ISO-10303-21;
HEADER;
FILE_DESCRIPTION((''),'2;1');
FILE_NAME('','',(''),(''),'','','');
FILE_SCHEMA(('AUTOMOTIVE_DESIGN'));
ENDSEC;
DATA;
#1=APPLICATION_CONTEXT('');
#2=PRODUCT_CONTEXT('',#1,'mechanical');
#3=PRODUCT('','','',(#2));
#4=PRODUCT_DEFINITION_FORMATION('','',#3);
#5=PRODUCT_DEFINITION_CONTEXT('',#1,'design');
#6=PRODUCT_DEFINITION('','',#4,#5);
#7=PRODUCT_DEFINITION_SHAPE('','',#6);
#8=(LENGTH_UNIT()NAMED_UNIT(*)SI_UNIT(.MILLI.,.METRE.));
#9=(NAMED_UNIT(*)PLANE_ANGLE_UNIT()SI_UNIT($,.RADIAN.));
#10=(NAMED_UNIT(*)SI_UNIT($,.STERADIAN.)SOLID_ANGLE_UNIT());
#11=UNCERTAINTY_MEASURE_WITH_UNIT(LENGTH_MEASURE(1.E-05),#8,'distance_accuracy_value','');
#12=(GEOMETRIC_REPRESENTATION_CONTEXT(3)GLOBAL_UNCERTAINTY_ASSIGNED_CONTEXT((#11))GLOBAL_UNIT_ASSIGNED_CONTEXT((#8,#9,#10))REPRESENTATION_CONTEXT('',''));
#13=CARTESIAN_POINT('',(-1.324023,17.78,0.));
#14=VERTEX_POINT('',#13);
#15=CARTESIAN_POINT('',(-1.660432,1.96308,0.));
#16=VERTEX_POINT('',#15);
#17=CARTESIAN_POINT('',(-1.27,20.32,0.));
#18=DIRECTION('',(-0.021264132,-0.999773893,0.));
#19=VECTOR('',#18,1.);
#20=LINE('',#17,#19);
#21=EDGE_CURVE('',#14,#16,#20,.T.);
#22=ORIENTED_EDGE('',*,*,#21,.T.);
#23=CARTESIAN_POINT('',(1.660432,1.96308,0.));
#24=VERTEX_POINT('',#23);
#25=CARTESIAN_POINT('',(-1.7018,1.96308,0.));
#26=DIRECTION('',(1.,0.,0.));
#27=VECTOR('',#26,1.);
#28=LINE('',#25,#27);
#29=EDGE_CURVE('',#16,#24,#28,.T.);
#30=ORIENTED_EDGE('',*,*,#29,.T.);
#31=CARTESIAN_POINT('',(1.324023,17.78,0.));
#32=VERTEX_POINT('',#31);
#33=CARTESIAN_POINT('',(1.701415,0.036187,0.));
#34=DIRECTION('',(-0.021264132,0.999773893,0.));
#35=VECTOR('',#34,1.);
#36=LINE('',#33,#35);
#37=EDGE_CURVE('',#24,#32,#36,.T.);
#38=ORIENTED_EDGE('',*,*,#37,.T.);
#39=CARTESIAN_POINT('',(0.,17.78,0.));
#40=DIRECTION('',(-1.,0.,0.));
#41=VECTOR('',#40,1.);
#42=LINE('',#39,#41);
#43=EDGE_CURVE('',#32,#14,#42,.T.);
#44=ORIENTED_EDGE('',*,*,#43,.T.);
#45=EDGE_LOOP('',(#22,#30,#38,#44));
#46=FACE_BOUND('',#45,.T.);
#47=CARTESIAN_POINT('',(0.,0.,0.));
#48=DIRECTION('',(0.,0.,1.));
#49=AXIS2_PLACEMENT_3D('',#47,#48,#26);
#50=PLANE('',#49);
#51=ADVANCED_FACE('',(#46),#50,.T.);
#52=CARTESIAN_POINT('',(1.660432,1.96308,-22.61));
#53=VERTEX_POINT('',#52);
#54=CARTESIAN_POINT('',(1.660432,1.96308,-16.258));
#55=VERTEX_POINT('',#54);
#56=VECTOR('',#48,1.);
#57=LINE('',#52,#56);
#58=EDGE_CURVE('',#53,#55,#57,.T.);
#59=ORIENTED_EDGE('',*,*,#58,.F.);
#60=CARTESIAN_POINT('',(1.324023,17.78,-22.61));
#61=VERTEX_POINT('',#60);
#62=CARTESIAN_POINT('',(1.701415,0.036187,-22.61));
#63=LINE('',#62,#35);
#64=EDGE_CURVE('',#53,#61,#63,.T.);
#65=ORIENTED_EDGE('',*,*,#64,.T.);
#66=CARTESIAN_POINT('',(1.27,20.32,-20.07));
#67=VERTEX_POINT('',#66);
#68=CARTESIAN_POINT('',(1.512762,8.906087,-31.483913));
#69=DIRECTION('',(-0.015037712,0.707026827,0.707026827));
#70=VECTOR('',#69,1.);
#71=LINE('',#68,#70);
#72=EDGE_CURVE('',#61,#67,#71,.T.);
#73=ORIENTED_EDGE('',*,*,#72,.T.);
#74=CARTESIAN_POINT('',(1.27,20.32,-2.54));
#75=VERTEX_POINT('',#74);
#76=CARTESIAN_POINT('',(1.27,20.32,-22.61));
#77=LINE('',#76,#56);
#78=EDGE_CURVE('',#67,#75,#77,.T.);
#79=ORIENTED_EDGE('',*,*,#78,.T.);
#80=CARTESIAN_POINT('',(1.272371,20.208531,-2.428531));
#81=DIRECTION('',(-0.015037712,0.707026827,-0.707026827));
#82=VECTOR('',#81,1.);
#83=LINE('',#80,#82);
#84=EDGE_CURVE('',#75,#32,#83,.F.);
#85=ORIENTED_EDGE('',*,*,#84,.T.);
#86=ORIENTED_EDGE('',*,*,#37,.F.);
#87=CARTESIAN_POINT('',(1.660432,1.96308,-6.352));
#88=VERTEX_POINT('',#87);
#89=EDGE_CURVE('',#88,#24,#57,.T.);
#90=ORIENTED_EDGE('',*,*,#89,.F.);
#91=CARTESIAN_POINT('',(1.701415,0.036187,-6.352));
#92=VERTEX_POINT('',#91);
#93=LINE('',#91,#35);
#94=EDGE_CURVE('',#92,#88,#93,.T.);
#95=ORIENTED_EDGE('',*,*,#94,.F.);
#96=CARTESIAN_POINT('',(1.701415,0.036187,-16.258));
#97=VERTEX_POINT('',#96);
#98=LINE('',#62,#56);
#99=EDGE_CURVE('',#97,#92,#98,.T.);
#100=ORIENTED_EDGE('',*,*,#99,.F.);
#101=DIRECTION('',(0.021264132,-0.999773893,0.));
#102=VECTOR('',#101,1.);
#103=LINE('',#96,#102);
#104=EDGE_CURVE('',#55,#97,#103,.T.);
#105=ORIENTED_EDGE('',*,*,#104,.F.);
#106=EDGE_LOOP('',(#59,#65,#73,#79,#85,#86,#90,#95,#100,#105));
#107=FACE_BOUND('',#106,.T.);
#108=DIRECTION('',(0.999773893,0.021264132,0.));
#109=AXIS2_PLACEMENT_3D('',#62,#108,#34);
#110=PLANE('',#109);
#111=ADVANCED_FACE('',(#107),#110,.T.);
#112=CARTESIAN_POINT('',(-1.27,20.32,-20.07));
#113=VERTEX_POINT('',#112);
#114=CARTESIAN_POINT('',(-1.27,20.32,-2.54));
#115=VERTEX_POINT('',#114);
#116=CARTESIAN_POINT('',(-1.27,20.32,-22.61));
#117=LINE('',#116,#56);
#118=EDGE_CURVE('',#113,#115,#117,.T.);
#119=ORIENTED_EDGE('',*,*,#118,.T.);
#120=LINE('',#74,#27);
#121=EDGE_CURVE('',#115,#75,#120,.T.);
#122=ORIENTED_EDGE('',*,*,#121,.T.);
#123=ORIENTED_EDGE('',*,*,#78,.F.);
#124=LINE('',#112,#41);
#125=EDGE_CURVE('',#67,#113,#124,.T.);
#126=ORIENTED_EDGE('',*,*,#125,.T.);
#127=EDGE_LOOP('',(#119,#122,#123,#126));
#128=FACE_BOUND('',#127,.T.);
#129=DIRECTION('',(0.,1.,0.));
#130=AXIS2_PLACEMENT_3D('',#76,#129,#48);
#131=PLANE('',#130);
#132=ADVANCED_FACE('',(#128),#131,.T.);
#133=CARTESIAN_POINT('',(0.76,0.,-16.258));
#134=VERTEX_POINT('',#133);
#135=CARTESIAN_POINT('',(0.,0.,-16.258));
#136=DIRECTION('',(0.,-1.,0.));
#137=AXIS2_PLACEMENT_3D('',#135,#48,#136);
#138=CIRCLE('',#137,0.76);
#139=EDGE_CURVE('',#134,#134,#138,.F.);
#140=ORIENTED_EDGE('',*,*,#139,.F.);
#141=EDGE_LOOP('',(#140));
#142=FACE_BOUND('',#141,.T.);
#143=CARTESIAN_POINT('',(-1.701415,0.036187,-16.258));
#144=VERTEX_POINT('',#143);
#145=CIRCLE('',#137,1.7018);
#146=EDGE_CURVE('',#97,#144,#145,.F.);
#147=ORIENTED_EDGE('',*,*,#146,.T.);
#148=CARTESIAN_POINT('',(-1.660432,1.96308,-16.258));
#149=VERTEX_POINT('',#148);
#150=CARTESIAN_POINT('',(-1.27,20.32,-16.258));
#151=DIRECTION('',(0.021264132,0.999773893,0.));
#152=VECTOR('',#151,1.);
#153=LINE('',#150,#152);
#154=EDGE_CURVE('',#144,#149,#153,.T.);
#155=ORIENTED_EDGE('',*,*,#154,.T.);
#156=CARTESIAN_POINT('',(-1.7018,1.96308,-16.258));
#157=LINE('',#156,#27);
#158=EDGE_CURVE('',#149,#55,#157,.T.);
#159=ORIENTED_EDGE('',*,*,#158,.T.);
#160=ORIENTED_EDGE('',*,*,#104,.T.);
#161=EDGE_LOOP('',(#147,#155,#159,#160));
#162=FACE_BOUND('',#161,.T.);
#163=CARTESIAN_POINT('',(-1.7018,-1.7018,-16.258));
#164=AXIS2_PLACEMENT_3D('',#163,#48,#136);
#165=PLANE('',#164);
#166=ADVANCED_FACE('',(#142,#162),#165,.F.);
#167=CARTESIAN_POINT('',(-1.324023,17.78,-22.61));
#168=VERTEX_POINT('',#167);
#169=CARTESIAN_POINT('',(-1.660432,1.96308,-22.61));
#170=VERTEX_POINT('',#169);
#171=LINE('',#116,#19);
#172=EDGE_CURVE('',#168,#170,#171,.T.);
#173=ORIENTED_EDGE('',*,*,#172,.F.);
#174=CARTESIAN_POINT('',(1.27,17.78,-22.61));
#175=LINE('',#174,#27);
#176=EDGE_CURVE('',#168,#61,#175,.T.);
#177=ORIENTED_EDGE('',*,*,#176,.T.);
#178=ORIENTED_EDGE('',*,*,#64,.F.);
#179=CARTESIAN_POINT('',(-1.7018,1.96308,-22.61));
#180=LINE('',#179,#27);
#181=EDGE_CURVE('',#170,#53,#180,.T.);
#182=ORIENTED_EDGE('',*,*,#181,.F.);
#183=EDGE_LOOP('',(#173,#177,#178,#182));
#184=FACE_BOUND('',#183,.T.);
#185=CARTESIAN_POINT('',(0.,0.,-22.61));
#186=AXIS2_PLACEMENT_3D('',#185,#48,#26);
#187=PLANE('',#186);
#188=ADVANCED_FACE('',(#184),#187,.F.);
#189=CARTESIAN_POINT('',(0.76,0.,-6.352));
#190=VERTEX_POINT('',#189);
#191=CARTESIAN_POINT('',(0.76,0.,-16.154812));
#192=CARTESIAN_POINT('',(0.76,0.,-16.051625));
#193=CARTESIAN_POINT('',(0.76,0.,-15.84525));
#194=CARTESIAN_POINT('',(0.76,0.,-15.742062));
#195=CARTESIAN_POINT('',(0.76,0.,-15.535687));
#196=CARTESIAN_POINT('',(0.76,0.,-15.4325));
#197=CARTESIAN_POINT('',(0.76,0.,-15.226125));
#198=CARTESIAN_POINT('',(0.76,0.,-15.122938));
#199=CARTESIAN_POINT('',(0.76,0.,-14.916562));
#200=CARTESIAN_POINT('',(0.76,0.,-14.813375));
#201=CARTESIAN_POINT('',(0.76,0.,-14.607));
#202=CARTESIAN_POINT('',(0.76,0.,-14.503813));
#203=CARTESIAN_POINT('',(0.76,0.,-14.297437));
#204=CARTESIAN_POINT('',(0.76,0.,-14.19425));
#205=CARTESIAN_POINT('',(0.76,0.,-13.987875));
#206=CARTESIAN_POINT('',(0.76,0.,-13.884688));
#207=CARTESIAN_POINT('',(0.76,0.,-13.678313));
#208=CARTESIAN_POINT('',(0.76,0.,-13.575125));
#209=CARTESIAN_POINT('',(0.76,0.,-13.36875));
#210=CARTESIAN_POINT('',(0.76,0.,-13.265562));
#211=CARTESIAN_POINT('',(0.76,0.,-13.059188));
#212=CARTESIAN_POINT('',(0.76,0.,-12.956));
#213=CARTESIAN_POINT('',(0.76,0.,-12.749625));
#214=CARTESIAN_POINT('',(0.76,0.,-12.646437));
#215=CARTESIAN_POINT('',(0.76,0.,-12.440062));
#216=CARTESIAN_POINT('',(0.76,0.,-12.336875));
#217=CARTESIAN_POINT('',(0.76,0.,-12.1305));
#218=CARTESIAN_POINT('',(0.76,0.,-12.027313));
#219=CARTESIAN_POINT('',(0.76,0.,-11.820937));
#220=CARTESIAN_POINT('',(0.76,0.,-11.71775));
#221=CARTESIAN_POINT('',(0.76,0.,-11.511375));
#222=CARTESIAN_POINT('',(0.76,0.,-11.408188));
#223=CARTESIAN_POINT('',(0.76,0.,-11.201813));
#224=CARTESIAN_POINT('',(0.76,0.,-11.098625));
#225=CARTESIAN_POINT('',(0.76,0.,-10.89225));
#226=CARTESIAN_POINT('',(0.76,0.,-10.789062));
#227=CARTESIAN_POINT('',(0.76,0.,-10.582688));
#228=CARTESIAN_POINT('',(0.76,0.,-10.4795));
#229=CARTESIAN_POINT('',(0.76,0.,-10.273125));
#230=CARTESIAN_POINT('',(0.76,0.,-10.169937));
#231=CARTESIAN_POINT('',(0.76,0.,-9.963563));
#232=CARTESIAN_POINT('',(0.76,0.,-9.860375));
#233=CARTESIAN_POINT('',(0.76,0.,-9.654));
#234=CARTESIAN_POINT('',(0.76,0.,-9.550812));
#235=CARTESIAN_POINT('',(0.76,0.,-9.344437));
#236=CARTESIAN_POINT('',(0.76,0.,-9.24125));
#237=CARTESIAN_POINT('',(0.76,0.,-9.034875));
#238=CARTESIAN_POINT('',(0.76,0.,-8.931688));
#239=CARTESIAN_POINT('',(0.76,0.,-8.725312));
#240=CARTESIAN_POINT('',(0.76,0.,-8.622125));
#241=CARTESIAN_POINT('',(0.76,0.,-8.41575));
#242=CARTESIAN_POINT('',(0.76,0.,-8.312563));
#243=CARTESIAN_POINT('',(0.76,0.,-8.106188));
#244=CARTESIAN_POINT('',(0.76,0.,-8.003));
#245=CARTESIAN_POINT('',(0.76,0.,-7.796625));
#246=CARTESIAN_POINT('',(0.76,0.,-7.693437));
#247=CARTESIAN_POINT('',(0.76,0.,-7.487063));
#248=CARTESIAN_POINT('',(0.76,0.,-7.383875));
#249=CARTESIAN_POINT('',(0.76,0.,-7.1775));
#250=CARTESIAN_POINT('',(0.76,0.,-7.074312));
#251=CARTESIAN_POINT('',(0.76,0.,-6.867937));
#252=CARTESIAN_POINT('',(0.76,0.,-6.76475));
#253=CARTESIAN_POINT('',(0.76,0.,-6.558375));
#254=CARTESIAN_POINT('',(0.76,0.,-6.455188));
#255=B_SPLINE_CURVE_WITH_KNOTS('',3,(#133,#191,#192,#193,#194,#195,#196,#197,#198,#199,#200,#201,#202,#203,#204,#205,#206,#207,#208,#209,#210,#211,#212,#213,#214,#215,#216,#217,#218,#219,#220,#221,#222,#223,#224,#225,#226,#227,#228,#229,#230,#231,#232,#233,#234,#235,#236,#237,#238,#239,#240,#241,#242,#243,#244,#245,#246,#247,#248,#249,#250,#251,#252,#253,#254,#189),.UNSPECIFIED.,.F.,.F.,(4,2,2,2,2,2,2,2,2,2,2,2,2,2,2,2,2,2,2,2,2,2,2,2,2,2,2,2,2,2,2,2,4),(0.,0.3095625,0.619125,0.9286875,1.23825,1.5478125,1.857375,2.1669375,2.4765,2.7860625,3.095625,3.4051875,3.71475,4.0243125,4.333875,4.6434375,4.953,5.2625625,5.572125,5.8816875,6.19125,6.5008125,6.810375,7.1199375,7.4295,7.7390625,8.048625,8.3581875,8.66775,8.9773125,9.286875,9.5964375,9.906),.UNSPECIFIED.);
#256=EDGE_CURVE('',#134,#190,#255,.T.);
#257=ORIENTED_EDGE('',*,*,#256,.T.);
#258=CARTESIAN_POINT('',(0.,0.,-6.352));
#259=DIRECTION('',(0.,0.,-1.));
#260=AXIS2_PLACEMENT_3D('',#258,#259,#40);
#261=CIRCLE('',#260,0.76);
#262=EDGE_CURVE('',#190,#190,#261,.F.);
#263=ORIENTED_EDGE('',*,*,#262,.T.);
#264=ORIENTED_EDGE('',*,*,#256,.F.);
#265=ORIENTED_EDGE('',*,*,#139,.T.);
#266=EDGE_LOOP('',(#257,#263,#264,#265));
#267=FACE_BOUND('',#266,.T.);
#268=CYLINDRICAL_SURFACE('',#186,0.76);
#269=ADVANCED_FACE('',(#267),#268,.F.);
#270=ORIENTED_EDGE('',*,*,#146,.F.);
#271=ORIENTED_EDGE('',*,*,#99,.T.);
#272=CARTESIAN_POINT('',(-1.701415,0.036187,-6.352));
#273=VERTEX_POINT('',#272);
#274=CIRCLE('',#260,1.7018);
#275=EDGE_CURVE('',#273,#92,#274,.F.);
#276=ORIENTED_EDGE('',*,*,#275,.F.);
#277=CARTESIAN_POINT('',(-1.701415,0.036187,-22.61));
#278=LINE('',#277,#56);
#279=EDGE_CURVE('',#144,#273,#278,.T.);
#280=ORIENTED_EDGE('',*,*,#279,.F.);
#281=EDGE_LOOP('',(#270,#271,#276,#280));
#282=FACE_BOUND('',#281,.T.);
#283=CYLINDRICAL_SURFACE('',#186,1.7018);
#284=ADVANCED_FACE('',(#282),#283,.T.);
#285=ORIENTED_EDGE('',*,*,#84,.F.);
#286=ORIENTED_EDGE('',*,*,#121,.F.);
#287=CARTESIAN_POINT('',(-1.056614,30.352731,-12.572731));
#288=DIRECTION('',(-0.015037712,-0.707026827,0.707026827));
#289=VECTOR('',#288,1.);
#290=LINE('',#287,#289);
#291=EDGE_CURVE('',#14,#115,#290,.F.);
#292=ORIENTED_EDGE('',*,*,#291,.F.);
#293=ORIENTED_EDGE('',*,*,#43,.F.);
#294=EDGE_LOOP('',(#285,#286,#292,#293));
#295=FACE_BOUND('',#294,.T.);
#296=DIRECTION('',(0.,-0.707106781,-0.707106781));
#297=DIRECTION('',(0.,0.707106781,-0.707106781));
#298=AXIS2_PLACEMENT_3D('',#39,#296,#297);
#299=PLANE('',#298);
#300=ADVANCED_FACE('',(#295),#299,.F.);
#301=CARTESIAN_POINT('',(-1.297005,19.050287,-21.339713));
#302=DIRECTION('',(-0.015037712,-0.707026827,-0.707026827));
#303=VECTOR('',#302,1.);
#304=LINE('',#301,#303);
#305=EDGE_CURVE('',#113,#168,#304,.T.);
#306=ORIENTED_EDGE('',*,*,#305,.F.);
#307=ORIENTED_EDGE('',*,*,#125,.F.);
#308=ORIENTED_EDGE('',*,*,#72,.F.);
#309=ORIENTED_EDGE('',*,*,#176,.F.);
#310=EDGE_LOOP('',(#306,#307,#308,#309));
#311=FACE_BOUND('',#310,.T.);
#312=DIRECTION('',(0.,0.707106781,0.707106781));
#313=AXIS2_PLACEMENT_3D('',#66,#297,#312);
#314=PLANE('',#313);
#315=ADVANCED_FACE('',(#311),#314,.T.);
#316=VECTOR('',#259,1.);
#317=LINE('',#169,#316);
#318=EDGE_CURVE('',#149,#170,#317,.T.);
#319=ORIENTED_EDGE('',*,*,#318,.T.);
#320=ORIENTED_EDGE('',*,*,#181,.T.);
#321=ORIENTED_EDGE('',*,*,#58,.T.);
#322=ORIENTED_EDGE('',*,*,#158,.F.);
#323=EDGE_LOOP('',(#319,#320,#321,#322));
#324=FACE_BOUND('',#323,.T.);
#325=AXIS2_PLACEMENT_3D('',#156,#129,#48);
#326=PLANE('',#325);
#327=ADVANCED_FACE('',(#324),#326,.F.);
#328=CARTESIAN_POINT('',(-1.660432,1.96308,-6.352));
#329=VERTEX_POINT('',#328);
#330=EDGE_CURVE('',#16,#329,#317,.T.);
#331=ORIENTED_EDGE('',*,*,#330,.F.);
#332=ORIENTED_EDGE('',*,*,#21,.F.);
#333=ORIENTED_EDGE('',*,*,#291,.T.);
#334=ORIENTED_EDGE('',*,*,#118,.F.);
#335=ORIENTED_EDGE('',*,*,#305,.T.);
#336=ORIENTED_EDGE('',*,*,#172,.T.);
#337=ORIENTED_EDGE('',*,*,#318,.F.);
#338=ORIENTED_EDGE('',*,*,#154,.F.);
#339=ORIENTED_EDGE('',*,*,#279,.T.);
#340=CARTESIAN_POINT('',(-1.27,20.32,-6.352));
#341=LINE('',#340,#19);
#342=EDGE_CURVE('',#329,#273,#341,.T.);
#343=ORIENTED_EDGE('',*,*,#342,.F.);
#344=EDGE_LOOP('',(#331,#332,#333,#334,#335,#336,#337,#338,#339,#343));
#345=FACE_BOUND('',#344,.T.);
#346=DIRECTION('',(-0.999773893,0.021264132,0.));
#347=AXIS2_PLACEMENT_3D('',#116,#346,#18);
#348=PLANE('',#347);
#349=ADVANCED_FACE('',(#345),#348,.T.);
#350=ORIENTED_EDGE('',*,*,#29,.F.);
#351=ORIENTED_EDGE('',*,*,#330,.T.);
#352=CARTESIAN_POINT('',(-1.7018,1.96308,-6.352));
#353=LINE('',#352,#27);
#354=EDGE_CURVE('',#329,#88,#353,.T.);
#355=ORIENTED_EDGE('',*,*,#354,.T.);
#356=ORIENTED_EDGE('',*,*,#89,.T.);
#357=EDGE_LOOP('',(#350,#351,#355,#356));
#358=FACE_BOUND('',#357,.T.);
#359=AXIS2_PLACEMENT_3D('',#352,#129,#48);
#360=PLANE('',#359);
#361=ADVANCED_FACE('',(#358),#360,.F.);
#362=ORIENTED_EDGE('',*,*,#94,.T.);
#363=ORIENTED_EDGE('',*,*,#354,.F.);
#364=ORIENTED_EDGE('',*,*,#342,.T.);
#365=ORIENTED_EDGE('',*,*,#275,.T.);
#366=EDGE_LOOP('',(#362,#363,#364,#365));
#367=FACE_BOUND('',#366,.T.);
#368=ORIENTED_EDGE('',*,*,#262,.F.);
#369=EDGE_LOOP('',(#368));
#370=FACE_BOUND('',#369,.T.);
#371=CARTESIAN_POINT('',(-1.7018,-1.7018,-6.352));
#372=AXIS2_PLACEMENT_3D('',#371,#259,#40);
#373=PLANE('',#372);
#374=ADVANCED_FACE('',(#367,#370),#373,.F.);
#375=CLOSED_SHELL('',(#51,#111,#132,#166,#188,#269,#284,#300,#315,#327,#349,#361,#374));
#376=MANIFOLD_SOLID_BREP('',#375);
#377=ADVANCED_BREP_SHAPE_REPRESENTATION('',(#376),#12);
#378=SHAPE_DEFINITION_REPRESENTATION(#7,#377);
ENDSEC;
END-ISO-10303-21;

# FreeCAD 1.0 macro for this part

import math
import FreeCAD as App
import Part
import Sketcher

V = App.Vector
Q = App.Units.Quantity


def edges_at(feature, points):
    """Names of the edges that pass closest to the given points."""
    edges = feature.Shape.Edges
    near = lambda p: min(range(len(edges)), key=lambda i: edges[i].distToShape(Part.Vertex(*p))[0])
    return sorted({f"Edge{near(p) + 1}" for p in points})


def add_polygon(sketch, points):
    """Adds a closed chain of lines whose ends are joined by coincident constraints."""
    first, n = sketch.GeometryCount, len(points)
    for a, b in zip(points, points[1:] + points[:1]):
        sketch.addGeometry(Part.LineSegment(App.Vector(*a, 0), App.Vector(*b, 0)), False)
    for i in range(n):
        sketch.addConstraint(Sketcher.Constraint("Coincident", first + i, 2, first + (i + 1) % n, 1))

doc = App.newDocument("Part")
body = doc.addObject("PartDesign::Body", "Body")

# Sketch on XY plane
sketch1 = body.newObject("Sketcher::SketchObject", "Sketch")
sketch1.AttachmentSupport = (doc.getObject("XY_Plane"), [""])
sketch1.MapMode = "FlatFace"
sketch1.addGeometry(Part.LineSegment(V(-1.27, 20.32, 0), V(-1.701415, 0.036187, 0)), False)
sketch1.addGeometry(Part.ArcOfCircle(Part.Circle(V(0, 0, 0), V(0, 0, 1), 1.7018), math.radians(178.781563), math.radians(361.218437)), False)
sketch1.addGeometry(Part.LineSegment(V(1.701415, 0.036187, 0), V(1.27, 20.32, 0)), False)
sketch1.addGeometry(Part.LineSegment(V(1.27, 20.32, 0), V(-1.27, 20.32, 0)), False)
sketch1.addConstraint(Sketcher.Constraint("Tangent", 0, 2, 1, 1))
sketch1.addConstraint(Sketcher.Constraint("Tangent", 1, 2, 2, 1))
sketch1.addConstraint(Sketcher.Constraint("Coincident", 2, 2, 3, 1))
sketch1.addConstraint(Sketcher.Constraint("Coincident", 3, 2, 0, 1))
sketch1.addConstraint(Sketcher.Constraint("Horizontal", 3))
sketch1.addConstraint(Sketcher.Constraint("Coincident", 1, 3, -1, 1))
sketch1.addConstraint(Sketcher.Constraint("Horizontal", 0, 2, 1, 2))
sketch1.addConstraint(Sketcher.Constraint("DistanceX", 3, 2, 3, 1, Q("0.1 in")))
sketch1.addConstraint(Sketcher.Constraint("Radius", 1, Q("0.067 in")))
sketch1.addConstraint(Sketcher.Constraint("DistanceY", -1, 1, 2, 2, Q("0.8 in")))
pad1 = body.newObject("PartDesign::Pad", "Pad")
pad1.Profile = sketch1
pad1.Length = 22.61
pad1.Reversed = True
doc.recompute()

chamfer = body.newObject("PartDesign::Chamfer", "Chamfer")
chamfer.Base = (pad1, edges_at(pad1, [(0, 20.32, -22.61), (0, 20.32, 0)]))
chamfer.Size = Q("0.1 in")

# Sketch on XY plane
sketch2 = body.newObject("Sketcher::SketchObject", "Sketch001")
sketch2.AttachmentSupport = (doc.getObject("XY_Plane"), [""])
sketch2.MapMode = "FlatFace"
sketch2.addGeometry(Part.Circle(V(0, 0, 0), V(0, 0, 1), 0.76), False)
sketch2.addConstraint(Sketcher.Constraint("Coincident", 0, 3, -1, 1))
sketch2.addConstraint(Sketcher.Constraint("Diameter", 0, 1.52))
pocket1 = body.newObject("PartDesign::Pocket", "Pocket")
pocket1.Profile = sketch2
pocket1.Type = "ThroughAll"

# Sketch on YZ plane
sketch3 = body.newObject("Sketcher::SketchObject", "Sketch002")
sketch3.AttachmentSupport = (doc.getObject("YZ_Plane"), [""])
sketch3.MapMode = "FlatFace"
add_polygon(sketch3, [(1.96308, 0), (-1.7018, 0), (-1.7018, -6.352), (1.96308, -6.352)])  # lines 0-3
add_polygon(sketch3, [(1.96308, -16.258), (-1.7018, -16.258), (-1.7018, -22.61), (1.96308, -22.61)])  # lines 4-7
sketch3.addConstraint(Sketcher.Constraint("Horizontal", 0))
sketch3.addConstraint(Sketcher.Constraint("Vertical", 1))
sketch3.addConstraint(Sketcher.Constraint("Horizontal", 2))
sketch3.addConstraint(Sketcher.Constraint("Vertical", 3))
sketch3.addConstraint(Sketcher.Constraint("Horizontal", 4))
sketch3.addConstraint(Sketcher.Constraint("Vertical", 5))
sketch3.addConstraint(Sketcher.Constraint("Horizontal", 6))
sketch3.addConstraint(Sketcher.Constraint("Vertical", 7))
sketch3.addConstraint(Sketcher.Constraint("PointOnObject", 0, 2, -1))
sketch3.addConstraint(Sketcher.Constraint("Vertical", 1, 2, 4, 2))
sketch3.addConstraint(Sketcher.Constraint("Vertical", 3, 2, 6, 2))
sketch3.addConstraint(Sketcher.Constraint("Equal", 3, 5))
sketch3.addConstraint(Sketcher.Constraint("DistanceY", 4, 2, 1, 2, Q("0.39 in")))
sketch3.addConstraint(Sketcher.Constraint("DistanceX", 0, 2, -1, 1, Q("0.067 in")))
sketch3.addConstraint(Sketcher.Constraint("DistanceY", 1, 2, 1, 1, 6.352))
sketch3.addConstraint(Sketcher.Constraint("DistanceX", 0, 2, 0, 1, 3.66488))
pocket2 = body.newObject("PartDesign::Pocket", "Pocket001")
pocket2.Profile = sketch3
pocket2.Type = "ThroughAll"
pocket2.Midplane = True

doc.recompute()
